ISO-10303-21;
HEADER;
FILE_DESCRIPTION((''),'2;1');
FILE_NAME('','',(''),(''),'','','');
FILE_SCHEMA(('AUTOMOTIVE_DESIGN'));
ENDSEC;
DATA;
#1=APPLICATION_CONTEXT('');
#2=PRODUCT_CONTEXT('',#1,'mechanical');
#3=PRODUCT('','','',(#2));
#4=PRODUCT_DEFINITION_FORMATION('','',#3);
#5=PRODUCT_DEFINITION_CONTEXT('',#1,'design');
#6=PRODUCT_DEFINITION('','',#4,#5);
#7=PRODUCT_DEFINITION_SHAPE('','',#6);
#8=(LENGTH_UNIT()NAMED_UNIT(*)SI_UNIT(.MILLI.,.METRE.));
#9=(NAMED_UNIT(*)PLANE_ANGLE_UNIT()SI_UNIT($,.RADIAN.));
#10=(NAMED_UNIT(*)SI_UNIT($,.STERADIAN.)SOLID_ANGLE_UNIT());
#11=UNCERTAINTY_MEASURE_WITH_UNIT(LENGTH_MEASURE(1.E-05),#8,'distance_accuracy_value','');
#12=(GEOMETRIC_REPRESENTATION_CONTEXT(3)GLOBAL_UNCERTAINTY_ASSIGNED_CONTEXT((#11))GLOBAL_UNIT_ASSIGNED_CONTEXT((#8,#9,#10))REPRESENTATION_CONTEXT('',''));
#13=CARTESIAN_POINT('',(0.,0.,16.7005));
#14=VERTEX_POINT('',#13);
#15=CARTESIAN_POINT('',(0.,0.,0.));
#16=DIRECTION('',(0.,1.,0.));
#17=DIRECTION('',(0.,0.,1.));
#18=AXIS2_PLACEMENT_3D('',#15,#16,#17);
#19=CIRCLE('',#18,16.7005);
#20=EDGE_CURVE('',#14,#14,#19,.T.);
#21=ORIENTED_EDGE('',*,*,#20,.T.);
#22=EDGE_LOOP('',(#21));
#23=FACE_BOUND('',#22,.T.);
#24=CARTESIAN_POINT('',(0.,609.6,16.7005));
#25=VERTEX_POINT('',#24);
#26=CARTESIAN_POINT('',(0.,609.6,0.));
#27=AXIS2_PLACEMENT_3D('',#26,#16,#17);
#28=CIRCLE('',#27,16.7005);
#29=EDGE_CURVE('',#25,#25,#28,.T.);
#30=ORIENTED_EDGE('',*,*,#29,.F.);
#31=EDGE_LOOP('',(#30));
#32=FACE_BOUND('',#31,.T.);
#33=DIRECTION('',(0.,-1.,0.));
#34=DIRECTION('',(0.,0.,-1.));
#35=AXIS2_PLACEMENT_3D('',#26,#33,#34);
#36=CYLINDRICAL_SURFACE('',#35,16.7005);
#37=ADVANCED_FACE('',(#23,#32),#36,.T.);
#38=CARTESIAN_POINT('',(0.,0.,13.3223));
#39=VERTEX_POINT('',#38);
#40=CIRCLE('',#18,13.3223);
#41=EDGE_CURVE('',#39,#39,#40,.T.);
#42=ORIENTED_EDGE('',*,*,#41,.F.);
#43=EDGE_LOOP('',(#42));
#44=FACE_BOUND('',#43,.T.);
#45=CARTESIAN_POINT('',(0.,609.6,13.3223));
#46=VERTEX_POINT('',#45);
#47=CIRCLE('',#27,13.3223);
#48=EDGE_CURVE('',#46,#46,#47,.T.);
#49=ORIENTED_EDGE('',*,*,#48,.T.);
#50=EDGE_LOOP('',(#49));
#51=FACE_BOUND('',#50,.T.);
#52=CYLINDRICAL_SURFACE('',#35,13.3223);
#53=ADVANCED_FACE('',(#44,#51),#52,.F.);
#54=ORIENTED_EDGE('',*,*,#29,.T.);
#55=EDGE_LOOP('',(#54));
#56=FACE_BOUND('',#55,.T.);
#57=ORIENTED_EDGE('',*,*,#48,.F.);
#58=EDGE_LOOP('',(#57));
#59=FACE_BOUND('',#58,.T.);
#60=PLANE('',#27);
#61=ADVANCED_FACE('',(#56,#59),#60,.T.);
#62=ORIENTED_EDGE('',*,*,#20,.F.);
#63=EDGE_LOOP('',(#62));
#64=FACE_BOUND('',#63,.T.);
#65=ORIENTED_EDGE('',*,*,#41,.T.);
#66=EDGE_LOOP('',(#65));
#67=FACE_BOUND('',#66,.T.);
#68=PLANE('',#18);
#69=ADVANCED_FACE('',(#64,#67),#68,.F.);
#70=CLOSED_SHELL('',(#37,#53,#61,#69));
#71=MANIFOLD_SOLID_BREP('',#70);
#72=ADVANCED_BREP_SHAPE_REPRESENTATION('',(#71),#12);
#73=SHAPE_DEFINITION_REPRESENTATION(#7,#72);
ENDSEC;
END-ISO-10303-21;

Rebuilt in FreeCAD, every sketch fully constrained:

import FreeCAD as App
import Part
import Sketcher
Q = App.Units.Quantity

doc = App.newDocument("Part")
body = doc.addObject("PartDesign::Body", "Body")

# Sketch on XZ plane
sketch1 = body.newObject("Sketcher::SketchObject", "Sketch")
sketch1.AttachmentSupport = (doc.getObject("XZ_Plane"), [""])
sketch1.MapMode = "FlatFace"
sketch1.addGeometry([
    Part.Circle(App.Vector(0, 0, 0), App.Vector(0, 0, 1), 17),
    Part.Circle(App.Vector(0, 0, 0), App.Vector(0, 0, 1), 13),
], False)
sketch1.addConstraint([
    Sketcher.Constraint("Coincident", 0, 3, -1, 1),
    Sketcher.Constraint("Coincident", 1, 3, -1, 1),
    Sketcher.Constraint("Diameter", 0, Q("1.315 in")),
    Sketcher.Constraint("Diameter", 1, Q("1.049 in")),
])
pad1 = body.newObject("PartDesign::Pad", "Pad")
pad1.Profile = sketch1
pad1.Length = Q("24 in")
pad1.Reversed = True

doc.recompute()
